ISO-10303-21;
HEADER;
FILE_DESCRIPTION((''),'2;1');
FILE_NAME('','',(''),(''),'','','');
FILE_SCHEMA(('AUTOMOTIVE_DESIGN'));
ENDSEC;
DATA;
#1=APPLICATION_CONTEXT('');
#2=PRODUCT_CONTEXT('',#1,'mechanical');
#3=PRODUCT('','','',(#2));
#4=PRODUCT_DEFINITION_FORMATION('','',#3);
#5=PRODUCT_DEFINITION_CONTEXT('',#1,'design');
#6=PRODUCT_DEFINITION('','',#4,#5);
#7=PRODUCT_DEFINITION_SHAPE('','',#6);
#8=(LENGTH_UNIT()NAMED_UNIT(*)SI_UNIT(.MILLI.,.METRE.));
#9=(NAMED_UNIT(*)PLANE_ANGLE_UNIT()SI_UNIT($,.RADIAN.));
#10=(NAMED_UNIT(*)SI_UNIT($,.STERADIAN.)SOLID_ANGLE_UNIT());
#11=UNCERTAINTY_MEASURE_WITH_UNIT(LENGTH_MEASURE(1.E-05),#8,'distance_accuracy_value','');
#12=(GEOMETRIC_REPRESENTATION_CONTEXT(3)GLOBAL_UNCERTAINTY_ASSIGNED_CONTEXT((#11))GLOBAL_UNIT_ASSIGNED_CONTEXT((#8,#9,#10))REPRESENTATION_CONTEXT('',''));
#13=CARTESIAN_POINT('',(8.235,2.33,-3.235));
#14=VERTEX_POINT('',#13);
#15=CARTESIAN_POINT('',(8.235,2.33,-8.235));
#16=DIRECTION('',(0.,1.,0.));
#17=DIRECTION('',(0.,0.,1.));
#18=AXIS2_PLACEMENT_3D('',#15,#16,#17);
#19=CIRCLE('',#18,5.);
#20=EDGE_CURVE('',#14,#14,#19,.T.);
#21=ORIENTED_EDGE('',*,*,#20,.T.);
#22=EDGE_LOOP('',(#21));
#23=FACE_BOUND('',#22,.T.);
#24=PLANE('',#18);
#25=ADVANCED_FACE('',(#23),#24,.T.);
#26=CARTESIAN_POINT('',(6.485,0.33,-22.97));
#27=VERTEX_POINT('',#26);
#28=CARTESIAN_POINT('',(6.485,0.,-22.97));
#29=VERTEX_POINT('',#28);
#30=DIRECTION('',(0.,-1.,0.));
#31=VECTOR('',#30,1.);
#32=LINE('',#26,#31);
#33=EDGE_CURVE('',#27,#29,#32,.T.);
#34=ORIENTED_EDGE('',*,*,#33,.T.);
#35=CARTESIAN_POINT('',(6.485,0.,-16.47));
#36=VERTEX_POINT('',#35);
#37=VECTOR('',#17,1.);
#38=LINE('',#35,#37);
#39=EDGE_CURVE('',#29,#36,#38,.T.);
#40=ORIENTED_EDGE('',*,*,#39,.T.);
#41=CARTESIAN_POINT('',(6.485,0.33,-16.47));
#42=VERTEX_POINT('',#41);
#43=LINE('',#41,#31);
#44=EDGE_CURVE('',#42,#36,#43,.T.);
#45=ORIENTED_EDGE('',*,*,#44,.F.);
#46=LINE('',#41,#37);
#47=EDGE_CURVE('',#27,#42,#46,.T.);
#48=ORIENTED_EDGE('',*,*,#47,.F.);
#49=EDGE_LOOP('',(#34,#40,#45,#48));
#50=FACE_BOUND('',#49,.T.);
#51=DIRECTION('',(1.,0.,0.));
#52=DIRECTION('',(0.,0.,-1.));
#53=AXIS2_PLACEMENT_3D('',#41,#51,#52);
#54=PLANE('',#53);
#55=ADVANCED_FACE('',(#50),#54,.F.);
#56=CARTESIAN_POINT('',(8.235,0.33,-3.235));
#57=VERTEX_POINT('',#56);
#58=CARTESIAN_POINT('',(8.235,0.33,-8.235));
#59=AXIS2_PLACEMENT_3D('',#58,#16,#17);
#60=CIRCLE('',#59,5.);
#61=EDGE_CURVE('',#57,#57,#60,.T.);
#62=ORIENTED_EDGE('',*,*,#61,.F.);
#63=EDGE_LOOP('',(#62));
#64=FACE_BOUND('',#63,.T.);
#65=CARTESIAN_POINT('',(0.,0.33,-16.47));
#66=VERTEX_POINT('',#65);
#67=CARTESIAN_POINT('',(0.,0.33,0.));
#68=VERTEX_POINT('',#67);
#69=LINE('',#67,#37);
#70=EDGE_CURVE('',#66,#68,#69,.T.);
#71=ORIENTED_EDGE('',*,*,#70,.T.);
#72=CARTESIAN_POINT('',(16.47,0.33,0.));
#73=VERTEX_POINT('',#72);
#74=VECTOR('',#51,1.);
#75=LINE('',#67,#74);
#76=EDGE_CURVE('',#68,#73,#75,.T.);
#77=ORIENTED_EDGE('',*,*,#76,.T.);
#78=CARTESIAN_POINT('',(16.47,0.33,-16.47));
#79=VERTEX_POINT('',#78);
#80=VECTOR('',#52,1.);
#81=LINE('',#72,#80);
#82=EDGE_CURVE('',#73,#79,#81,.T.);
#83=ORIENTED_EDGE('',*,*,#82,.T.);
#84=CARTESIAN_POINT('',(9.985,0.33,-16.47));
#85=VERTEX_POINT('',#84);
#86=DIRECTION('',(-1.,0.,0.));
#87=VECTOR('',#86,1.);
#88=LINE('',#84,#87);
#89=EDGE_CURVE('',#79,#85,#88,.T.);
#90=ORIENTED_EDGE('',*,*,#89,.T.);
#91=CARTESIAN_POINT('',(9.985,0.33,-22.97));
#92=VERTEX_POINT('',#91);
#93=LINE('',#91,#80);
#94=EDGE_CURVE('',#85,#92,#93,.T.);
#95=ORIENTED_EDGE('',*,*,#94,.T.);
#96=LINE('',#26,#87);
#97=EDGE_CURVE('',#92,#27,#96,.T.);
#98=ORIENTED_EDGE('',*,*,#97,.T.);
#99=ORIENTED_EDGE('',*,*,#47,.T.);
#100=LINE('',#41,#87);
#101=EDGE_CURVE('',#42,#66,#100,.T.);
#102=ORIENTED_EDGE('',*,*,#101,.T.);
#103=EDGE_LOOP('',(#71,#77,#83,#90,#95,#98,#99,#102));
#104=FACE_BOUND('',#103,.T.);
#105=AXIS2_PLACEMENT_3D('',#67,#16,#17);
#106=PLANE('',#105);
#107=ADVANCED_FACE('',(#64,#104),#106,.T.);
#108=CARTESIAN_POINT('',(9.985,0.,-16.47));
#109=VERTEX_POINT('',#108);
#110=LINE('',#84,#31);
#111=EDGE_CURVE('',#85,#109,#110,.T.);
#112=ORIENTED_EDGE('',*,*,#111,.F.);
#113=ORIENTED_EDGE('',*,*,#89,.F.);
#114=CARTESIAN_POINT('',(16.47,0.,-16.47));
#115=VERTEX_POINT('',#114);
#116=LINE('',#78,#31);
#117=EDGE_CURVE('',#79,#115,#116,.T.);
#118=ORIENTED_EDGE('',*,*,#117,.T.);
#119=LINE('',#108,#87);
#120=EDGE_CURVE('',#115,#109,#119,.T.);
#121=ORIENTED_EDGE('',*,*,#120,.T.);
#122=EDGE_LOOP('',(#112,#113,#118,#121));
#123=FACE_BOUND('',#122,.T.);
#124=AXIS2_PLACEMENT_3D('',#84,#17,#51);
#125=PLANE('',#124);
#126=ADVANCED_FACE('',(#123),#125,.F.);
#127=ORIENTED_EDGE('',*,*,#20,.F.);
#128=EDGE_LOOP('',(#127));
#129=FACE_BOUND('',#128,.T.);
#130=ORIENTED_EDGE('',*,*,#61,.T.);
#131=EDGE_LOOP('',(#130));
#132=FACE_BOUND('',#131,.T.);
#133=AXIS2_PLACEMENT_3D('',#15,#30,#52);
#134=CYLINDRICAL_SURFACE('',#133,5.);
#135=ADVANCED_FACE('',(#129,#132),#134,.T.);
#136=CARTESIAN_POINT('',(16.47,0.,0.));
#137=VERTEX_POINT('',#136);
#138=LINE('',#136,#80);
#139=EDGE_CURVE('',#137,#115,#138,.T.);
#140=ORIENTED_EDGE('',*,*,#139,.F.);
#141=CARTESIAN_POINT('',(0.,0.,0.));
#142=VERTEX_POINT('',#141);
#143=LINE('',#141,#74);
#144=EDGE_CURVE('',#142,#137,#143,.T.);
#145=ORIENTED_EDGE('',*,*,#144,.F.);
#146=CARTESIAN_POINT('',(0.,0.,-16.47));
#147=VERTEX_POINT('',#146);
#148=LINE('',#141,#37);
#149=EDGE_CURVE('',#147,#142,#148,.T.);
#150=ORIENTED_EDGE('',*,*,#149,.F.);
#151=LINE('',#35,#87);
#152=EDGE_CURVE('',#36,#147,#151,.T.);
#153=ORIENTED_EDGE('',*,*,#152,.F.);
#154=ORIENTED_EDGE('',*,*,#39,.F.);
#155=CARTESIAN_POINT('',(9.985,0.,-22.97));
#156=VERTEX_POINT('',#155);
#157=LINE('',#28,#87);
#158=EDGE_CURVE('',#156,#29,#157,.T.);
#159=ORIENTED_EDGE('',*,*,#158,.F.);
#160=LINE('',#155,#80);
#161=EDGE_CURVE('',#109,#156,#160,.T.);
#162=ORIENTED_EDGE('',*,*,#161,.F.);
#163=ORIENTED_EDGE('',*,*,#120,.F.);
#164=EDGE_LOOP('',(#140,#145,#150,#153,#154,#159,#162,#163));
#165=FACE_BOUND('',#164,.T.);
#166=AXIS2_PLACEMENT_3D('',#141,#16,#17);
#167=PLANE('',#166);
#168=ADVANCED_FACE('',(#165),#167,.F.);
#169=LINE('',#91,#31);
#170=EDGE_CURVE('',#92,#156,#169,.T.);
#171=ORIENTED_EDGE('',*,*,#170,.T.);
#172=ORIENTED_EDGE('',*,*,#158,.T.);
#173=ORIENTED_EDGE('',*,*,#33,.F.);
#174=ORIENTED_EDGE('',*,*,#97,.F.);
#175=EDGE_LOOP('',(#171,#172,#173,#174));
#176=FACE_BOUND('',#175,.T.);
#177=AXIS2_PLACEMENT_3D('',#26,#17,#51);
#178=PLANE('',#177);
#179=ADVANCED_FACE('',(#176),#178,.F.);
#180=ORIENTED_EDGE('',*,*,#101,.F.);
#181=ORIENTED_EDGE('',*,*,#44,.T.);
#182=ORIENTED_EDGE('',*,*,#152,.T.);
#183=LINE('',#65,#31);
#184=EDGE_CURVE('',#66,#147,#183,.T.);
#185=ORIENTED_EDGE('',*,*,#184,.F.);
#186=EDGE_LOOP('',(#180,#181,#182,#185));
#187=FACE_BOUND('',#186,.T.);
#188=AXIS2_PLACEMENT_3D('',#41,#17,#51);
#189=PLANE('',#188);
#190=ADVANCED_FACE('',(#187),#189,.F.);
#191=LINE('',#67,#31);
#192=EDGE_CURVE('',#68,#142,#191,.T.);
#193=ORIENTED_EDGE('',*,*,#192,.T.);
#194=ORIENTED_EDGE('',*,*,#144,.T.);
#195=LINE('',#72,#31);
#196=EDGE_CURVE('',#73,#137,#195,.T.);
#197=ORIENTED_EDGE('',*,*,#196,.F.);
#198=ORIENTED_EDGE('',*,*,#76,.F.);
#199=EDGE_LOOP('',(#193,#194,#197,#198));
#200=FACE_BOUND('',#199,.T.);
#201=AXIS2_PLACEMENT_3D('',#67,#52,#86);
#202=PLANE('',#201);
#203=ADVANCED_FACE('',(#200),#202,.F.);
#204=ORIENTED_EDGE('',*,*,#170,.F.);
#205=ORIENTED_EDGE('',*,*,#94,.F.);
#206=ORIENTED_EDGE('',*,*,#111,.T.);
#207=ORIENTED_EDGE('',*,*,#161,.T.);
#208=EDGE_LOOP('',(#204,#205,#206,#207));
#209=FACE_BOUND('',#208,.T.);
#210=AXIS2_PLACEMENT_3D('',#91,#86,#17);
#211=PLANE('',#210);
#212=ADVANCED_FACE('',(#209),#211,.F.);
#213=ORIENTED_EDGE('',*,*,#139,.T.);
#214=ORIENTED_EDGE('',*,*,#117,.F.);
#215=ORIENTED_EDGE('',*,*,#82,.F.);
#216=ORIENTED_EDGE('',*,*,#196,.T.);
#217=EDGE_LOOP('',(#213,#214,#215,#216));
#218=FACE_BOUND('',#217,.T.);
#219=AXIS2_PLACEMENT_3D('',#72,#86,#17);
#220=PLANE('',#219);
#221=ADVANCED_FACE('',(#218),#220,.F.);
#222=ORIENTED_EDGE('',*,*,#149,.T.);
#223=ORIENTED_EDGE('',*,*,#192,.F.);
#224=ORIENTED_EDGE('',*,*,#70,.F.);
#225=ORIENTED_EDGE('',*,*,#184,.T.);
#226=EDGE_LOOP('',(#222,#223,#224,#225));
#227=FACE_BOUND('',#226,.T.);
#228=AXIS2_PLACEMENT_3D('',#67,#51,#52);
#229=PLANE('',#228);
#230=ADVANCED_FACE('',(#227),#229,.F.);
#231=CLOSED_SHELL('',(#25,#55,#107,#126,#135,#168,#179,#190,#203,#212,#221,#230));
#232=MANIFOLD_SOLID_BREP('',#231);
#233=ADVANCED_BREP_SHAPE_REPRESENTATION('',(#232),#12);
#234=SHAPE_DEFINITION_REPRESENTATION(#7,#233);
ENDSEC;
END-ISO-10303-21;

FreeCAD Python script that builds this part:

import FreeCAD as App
import Part
import Sketcher
Q = App.Units.Quantity


def add_polygon(sketch, points):
    """Adds a closed chain of lines whose ends are joined by coincident constraints."""
    first, n = sketch.GeometryCount, len(points)
    for a, b in zip(points, points[1:] + points[:1]):
        sketch.addGeometry(Part.LineSegment(App.Vector(*a, 0), App.Vector(*b, 0)), False)
    for i in range(n):
        sketch.addConstraint(Sketcher.Constraint("Coincident", first + i, 2, first + (i + 1) % n, 1))

doc = App.newDocument("Part")
body = doc.addObject("PartDesign::Body", "Body")

# Sketch on XZ plane
sketch1 = body.newObject("Sketcher::SketchObject", "Sketch")
sketch1.AttachmentSupport = (doc.getObject("XZ_Plane"), [""])
sketch1.MapMode = "FlatFace"
add_polygon(sketch1, [(0, 0), (16.5, 0), (16.5, -16.5), (10, -16.5), (10, -23), (6.5, -23), (6.5, -16.5), (0, -16.5)])  # lines 0-7
sketch1.addConstraint(Sketcher.Constraint("Horizontal", 0))
sketch1.addConstraint(Sketcher.Constraint("Vertical", 1))
sketch1.addConstraint(Sketcher.Constraint("Horizontal", 2))
sketch1.addConstraint(Sketcher.Constraint("Vertical", 3))
sketch1.addConstraint(Sketcher.Constraint("Horizontal", 4))
sketch1.addConstraint(Sketcher.Constraint("Vertical", 5))
sketch1.addConstraint(Sketcher.Constraint("Horizontal", 6))
sketch1.addConstraint(Sketcher.Constraint("Vertical", 7))
sketch1.addConstraint(Sketcher.Constraint("Coincident", 7, 2, -1, 1))
sketch1.addConstraint(Sketcher.Constraint("Horizontal", 2, 2, 5, 2))
sketch1.addConstraint(Sketcher.Constraint("Equal", 2, 6))
sketch1.addConstraint(Sketcher.Constraint("Equal", 0, 1))
sketch1.addConstraint(Sketcher.Constraint("DistanceX", 4, 2, 4, 1, Q("3.5 mm")))
sketch1.addConstraint(Sketcher.Constraint("DistanceY", 3, 2, 3, 1, Q("6.5 mm")))
sketch1.addConstraint(Sketcher.Constraint("DistanceX", 0, 1, 0, 2, Q("16.47 mm")))
pad1 = body.newObject("PartDesign::Pad", "Pad")
pad1.Profile = sketch1
pad1.Length = 0.33
pad1.Reversed = True

# Sketch on XZ plane
sketch2 = body.newObject("Sketcher::SketchObject", "Sketch001")
sketch2.AttachmentSupport = (doc.getObject("XZ_Plane"), [""])
sketch2.MapMode = "FlatFace"
sketch2.AttachmentOffset = App.Placement(App.Vector(0, 0, -0.33), App.Rotation())
sketch2.addGeometry(Part.Circle(App.Vector(8, -8, 0), App.Vector(0, 0, 1), 5), False)
sketch2.addConstraint(Sketcher.Constraint("Diameter", 0, Q("10 mm")))
sketch2.addConstraint(Sketcher.Constraint("DistanceX", -1, 1, 0, 3, Q("8.235 mm")))
sketch2.addConstraint(Sketcher.Constraint("DistanceY", 0, 3, -1, 1, Q("8.235 mm")))
pad2 = body.newObject("PartDesign::Pad", "Pad001")
pad2.Profile = sketch2
pad2.Length = 2
pad2.Reversed = True

doc.recompute()
